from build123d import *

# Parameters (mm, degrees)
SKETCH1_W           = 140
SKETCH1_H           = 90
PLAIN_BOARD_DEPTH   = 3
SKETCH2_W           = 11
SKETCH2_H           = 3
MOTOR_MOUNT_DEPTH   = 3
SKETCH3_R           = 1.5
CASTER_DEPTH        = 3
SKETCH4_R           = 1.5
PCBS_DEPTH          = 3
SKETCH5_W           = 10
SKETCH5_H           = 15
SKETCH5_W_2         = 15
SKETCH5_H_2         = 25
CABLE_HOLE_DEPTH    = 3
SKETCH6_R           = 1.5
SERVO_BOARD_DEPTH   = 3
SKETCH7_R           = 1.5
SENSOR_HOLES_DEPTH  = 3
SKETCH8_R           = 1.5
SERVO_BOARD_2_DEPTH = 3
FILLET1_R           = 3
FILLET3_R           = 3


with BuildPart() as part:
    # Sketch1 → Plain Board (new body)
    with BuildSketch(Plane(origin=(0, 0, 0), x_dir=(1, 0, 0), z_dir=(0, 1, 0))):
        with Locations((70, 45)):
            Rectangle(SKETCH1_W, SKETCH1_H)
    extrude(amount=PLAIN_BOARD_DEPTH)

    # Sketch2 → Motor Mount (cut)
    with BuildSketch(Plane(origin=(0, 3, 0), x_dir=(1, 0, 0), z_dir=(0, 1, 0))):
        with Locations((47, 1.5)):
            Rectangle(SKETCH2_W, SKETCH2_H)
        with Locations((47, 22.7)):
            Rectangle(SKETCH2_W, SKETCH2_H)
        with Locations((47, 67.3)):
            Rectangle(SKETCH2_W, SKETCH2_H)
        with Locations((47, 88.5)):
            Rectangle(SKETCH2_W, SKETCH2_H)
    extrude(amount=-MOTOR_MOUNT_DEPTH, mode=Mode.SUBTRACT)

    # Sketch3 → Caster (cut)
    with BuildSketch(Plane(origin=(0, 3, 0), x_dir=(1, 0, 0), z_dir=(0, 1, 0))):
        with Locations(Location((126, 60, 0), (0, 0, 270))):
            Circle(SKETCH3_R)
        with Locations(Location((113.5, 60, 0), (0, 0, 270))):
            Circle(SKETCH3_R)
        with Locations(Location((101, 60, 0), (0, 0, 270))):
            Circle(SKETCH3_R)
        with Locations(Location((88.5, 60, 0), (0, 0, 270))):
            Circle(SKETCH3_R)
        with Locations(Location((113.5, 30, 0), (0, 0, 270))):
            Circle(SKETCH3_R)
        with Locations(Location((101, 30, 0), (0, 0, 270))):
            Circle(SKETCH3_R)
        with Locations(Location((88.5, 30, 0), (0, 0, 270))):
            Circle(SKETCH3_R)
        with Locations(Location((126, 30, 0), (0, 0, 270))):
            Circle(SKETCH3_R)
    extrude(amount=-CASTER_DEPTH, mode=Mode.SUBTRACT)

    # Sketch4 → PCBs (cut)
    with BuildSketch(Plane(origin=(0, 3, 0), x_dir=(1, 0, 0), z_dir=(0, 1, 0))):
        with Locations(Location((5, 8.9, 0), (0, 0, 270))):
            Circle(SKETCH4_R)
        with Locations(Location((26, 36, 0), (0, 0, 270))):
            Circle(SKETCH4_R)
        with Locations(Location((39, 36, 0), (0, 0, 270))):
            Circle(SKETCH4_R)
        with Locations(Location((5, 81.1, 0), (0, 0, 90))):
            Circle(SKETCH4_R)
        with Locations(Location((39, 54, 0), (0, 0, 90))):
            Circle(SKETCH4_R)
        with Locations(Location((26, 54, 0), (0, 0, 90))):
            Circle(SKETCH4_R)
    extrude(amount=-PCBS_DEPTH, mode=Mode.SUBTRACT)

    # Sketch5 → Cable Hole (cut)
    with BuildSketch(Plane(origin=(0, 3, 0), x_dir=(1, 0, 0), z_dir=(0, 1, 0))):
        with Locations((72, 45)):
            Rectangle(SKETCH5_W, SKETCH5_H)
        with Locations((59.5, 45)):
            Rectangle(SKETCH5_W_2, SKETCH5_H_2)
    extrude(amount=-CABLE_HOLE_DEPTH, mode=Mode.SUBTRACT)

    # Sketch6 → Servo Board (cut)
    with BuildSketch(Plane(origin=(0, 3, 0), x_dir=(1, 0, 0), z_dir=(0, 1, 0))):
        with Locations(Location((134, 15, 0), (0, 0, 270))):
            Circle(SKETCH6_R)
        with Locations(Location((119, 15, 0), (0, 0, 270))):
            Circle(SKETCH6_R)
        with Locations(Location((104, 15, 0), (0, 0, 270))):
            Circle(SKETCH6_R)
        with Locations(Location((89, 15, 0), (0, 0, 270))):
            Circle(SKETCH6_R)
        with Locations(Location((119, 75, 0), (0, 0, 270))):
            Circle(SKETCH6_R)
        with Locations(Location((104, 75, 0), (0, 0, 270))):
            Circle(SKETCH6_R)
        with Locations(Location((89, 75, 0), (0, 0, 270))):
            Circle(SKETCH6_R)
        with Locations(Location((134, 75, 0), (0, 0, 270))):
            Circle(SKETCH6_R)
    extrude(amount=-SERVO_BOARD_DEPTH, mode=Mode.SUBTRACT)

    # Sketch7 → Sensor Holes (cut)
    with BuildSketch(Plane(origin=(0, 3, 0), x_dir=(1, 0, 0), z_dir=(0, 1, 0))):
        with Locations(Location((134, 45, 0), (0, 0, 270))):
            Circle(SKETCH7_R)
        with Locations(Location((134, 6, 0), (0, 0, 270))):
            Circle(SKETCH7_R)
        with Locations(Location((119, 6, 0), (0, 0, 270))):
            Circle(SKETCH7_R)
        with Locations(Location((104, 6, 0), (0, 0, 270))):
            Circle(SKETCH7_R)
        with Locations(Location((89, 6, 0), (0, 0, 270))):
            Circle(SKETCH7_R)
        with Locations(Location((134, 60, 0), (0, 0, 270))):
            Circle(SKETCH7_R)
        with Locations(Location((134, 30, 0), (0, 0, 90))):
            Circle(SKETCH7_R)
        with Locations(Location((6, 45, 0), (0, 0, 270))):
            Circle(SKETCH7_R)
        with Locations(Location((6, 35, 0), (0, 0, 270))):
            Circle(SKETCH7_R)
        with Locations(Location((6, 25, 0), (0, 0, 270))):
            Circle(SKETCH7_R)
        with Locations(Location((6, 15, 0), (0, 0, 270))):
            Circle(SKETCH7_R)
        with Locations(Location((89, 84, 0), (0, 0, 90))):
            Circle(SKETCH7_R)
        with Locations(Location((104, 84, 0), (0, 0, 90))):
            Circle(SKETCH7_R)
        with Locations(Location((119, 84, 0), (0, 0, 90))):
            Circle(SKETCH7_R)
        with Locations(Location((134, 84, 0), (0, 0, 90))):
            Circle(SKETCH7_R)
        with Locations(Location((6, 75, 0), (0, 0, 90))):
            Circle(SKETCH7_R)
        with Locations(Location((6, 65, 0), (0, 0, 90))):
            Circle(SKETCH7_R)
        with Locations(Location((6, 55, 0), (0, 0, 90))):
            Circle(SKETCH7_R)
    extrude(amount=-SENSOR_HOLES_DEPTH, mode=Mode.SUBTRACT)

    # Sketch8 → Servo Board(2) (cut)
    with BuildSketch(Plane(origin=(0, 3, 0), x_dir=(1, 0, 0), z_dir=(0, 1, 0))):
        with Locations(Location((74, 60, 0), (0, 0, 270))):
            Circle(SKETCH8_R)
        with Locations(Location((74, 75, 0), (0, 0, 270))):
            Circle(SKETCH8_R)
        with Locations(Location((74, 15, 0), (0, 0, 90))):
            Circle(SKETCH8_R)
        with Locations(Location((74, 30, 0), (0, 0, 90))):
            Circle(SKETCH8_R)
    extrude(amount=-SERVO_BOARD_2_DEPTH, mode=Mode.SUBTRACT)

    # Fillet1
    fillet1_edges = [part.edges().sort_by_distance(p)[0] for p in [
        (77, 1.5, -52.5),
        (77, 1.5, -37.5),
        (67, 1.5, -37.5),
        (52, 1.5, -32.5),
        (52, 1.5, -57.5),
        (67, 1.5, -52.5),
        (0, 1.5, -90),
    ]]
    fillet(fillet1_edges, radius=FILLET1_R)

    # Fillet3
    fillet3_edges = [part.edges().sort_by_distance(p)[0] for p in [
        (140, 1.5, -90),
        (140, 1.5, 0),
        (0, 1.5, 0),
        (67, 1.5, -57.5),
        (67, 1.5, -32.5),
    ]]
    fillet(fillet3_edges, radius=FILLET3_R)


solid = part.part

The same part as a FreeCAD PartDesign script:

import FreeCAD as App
import Part
import Sketcher
Q = App.Units.Quantity


def edges_at(feature, points):
    """Names of the edges that pass closest to the given points."""
    edges = feature.Shape.Edges
    near = lambda p: min(range(len(edges)), key=lambda i: edges[i].distToShape(Part.Vertex(*p))[0])
    return sorted({f"Edge{near(p) + 1}" for p in points})

doc = App.newDocument("Part")
body = doc.addObject("PartDesign::Body", "Body")

sketch1 = body.newObject("Sketcher::SketchObject", "Sketch")
sketch1.AttachmentSupport = (doc.getObject("XZ_Plane"), [""])
sketch1.MapMode = "FlatFace"
sketch1.addGeometry([
    Part.LineSegment(App.Vector(0, -90, 0), App.Vector(0, 0, 0)),
    Part.LineSegment(App.Vector(0, 0, 0), App.Vector(140, 0, 0)),
    Part.LineSegment(App.Vector(140, 0, 0), App.Vector(140, -90, 0)),
    Part.LineSegment(App.Vector(140, -90, 0), App.Vector(0, -90, 0)),
], False)
sketch1.addConstraint([
    Sketcher.Constraint("Coincident", 0, 2, 1, 1),
    Sketcher.Constraint("Coincident", 1, 2, 2, 1),
    Sketcher.Constraint("Coincident", 2, 2, 3, 1),
    Sketcher.Constraint("Coincident", 3, 2, 0, 1),
    Sketcher.Constraint("Vertical", 0),
    Sketcher.Constraint("Horizontal", 1),
    Sketcher.Constraint("Vertical", 2),
    Sketcher.Constraint("Horizontal", 3),
    Sketcher.Constraint("Coincident", 0, 2, -1, 1),
    Sketcher.Constraint("DistanceX", 1, 1, 1, 2, Q("140 mm")),
    Sketcher.Constraint("DistanceY", 0, 1, 0, 2, Q("90 mm")),
])
pad1 = body.newObject("PartDesign::Pad", "Pad")
pad1.Profile = sketch1
pad1.Length = 3
pad1.Reversed = True

sketch2 = body.newObject("Sketcher::SketchObject", "Sketch001")
sketch2.AttachmentSupport = (doc.getObject("XZ_Plane"), [""])
sketch2.MapMode = "FlatFace"
sketch2.AttachmentOffset = App.Placement(App.Vector(0, 0, -3), App.Rotation())
sketch2.addGeometry([
    Part.LineSegment(App.Vector(41.5, -3, 0), App.Vector(41.5, 0, 0)),
    Part.LineSegment(App.Vector(41.5, 0, 0), App.Vector(52.5, 0, 0)),
    Part.LineSegment(App.Vector(52.5, 0, 0), App.Vector(52.5, -3, 0)),
    Part.LineSegment(App.Vector(52.5, -3, 0), App.Vector(41.5, -3, 0)),
    Part.LineSegment(App.Vector(41.5, -24.2, 0), App.Vector(41.5, -21.2, 0)),
    Part.LineSegment(App.Vector(41.5, -21.2, 0), App.Vector(52.5, -21.2, 0)),
    Part.LineSegment(App.Vector(52.5, -21.2, 0), App.Vector(52.5, -24.2, 0)),
    Part.LineSegment(App.Vector(52.5, -24.2, 0), App.Vector(41.5, -24.2, 0)),
    Part.LineSegment(App.Vector(41.5, -68.8, 0), App.Vector(41.5, -65.8, 0)),
    Part.LineSegment(App.Vector(41.5, -65.8, 0), App.Vector(52.5, -65.8, 0)),
    Part.LineSegment(App.Vector(52.5, -65.8, 0), App.Vector(52.5, -68.8, 0)),
    Part.LineSegment(App.Vector(52.5, -68.8, 0), App.Vector(41.5, -68.8, 0)),
    Part.LineSegment(App.Vector(41.5, -90, 0), App.Vector(41.5, -87, 0)),
    Part.LineSegment(App.Vector(41.5, -87, 0), App.Vector(52.5, -87, 0)),
    Part.LineSegment(App.Vector(52.5, -87, 0), App.Vector(52.5, -90, 0)),
    Part.LineSegment(App.Vector(52.5, -90, 0), App.Vector(41.5, -90, 0)),
], False)
sketch2.addConstraint([
    Sketcher.Constraint("Coincident", 0, 2, 1, 1),
    Sketcher.Constraint("Coincident", 1, 2, 2, 1),
    Sketcher.Constraint("Coincident", 2, 2, 3, 1),
    Sketcher.Constraint("Coincident", 3, 2, 0, 1),
    Sketcher.Constraint("Coincident", 4, 2, 5, 1),
    Sketcher.Constraint("Coincident", 5, 2, 6, 1),
    Sketcher.Constraint("Coincident", 6, 2, 7, 1),
    Sketcher.Constraint("Coincident", 7, 2, 4, 1),
    Sketcher.Constraint("Coincident", 8, 2, 9, 1),
    Sketcher.Constraint("Coincident", 9, 2, 10, 1),
    Sketcher.Constraint("Coincident", 10, 2, 11, 1),
    Sketcher.Constraint("Coincident", 11, 2, 8, 1),
    Sketcher.Constraint("Coincident", 12, 2, 13, 1),
    Sketcher.Constraint("Coincident", 13, 2, 14, 1),
    Sketcher.Constraint("Coincident", 14, 2, 15, 1),
    Sketcher.Constraint("Coincident", 15, 2, 12, 1),
    Sketcher.Constraint("Vertical", 0),
    Sketcher.Constraint("Horizontal", 1),
    Sketcher.Constraint("Vertical", 2),
    Sketcher.Constraint("Horizontal", 3),
    Sketcher.Constraint("Vertical", 4),
    Sketcher.Constraint("Horizontal", 5),
    Sketcher.Constraint("Vertical", 6),
    Sketcher.Constraint("Horizontal", 7),
    Sketcher.Constraint("Vertical", 8),
    Sketcher.Constraint("Horizontal", 9),
    Sketcher.Constraint("Vertical", 10),
    Sketcher.Constraint("Horizontal", 11),
    Sketcher.Constraint("Vertical", 12),
    Sketcher.Constraint("Horizontal", 13),
    Sketcher.Constraint("Vertical", 14),
    Sketcher.Constraint("Horizontal", 15),
    Sketcher.Constraint("PointOnObject", 0, 2, -1),
    Sketcher.Constraint("Vertical", 3, 2, 4, 2),
    Sketcher.Constraint("Vertical", 2, 2, 5, 2),
    Sketcher.Constraint("Vertical", 7, 2, 8, 2),
    Sketcher.Constraint("Vertical", 6, 2, 9, 2),
    Sketcher.Constraint("Vertical", 11, 2, 12, 2),
    Sketcher.Constraint("Vertical", 10, 2, 13, 2),
    Sketcher.Constraint("Equal", 2, 4),
    Sketcher.Constraint("Equal", 6, 8),
    Sketcher.Constraint("Equal", 10, 12),
    Sketcher.Constraint("DistanceX", 1, 1, 1, 2, Q("11 mm")),
    Sketcher.Constraint("DistanceY", 0, 1, 0, 2, Q("3 mm")),
    Sketcher.Constraint("DistanceY", 12, 2, -1, 1, Q("87 mm")),
    Sketcher.Constraint("DistanceX", -1, 1, 0, 2, Q("41.5 mm")),
    Sketcher.Constraint("DistanceY", 4, 2, -1, 1, Q("21.2 mm")),
    Sketcher.Constraint("DistanceY", 8, 2, -1, 1, Q("65.8 mm")),
])
pocket1 = body.newObject("PartDesign::Pocket", "Pocket")
pocket1.Profile = sketch2
pocket1.Length = 3
pocket1.Reversed = True

sketch3 = body.newObject("Sketcher::SketchObject", "Sketch002")
sketch3.AttachmentSupport = (doc.getObject("XZ_Plane"), [""])
sketch3.MapMode = "FlatFace"
sketch3.AttachmentOffset = App.Placement(App.Vector(0, 0, -3), App.Rotation())
sketch3.addGeometry([
    Part.Circle(App.Vector(126, -60, 0), App.Vector(0, 0, 1), 1.5),
    Part.Circle(App.Vector(113.5, -60, 0), App.Vector(0, 0, 1), 1.5),
    Part.Circle(App.Vector(101, -60, 0), App.Vector(0, 0, 1), 1.5),
    Part.Circle(App.Vector(88.5, -60, 0), App.Vector(0, 0, 1), 1.5),
    Part.Circle(App.Vector(113.5, -30, 0), App.Vector(0, 0, 1), 1.5),
    Part.Circle(App.Vector(101, -30, 0), App.Vector(0, 0, 1), 1.5),
    Part.Circle(App.Vector(88.5, -30, 0), App.Vector(0, 0, 1), 1.5),
    Part.Circle(App.Vector(126, -30, 0), App.Vector(0, 0, 1), 1.5),
], False)
sketch3.addConstraint([
    Sketcher.Constraint("Equal", 0, 1),
    Sketcher.Constraint("Equal", 1, 2),
    Sketcher.Constraint("Equal", 2, 3),
    Sketcher.Constraint("Equal", 3, 4),
    Sketcher.Constraint("Equal", 4, 5),
    Sketcher.Constraint("Equal", 5, 6),
    Sketcher.Constraint("Equal", 6, 7),
    Sketcher.Constraint("Horizontal", 0, 3, 1, 3),
    Sketcher.Constraint("Horizontal", 1, 3, 2, 3),
    Sketcher.Constraint("Horizontal", 2, 3, 3, 3),
    Sketcher.Constraint("Horizontal", 4, 3, 5, 3),
    Sketcher.Constraint("Horizontal", 5, 3, 6, 3),
    Sketcher.Constraint("Horizontal", 6, 3, 7, 3),
    Sketcher.Constraint("Vertical", 1, 3, 4, 3),
    Sketcher.Constraint("Vertical", 2, 3, 5, 3),
    Sketcher.Constraint("Vertical", 3, 3, 6, 3),
    Sketcher.Constraint("Vertical", 0, 3, 7, 3),
    Sketcher.Constraint("Diameter", 0, Q("3 mm")),
    Sketcher.Constraint("DistanceX", -1, 1, 0, 3, Q("126 mm")),
    Sketcher.Constraint("DistanceY", 0, 3, -1, 1, Q("60 mm")),
    Sketcher.Constraint("DistanceX", -1, 1, 2, 3, Q("101 mm")),
    Sketcher.Constraint("DistanceY", 4, 3, -1, 1, Q("30 mm")),
    Sketcher.Constraint("DistanceX", 3, 3, 1, 3, Q("25 mm")),
    Sketcher.Constraint("DistanceX", -1, 1, 1, 3, Q("113.5 mm")),
])
pocket2 = body.newObject("PartDesign::Pocket", "Pocket001")
pocket2.Profile = sketch3
pocket2.Length = 3
pocket2.Reversed = True

sketch4 = body.newObject("Sketcher::SketchObject", "Sketch003")
sketch4.AttachmentSupport = (doc.getObject("XZ_Plane"), [""])
sketch4.MapMode = "FlatFace"
sketch4.AttachmentOffset = App.Placement(App.Vector(0, 0, -3), App.Rotation())
sketch4.addGeometry([
    Part.Circle(App.Vector(5, -8.9, 0), App.Vector(0, 0, 1), 1.5),
    Part.Circle(App.Vector(26, -36, 0), App.Vector(0, 0, 1), 1.5),
    Part.Circle(App.Vector(39, -36, 0), App.Vector(0, 0, 1), 1.5),
    Part.Circle(App.Vector(5, -81.1, 0), App.Vector(0, 0, 1), 1.5),
    Part.Circle(App.Vector(39, -54, 0), App.Vector(0, 0, 1), 1.5),
    Part.Circle(App.Vector(26, -54, 0), App.Vector(0, 0, 1), 1.5),
], False)
sketch4.addConstraint([
    Sketcher.Constraint("Equal", 0, 1),
    Sketcher.Constraint("Equal", 1, 2),
    Sketcher.Constraint("Equal", 2, 3),
    Sketcher.Constraint("Equal", 3, 4),
    Sketcher.Constraint("Equal", 4, 5),
    Sketcher.Constraint("Horizontal", 1, 3, 2, 3),
    Sketcher.Constraint("Horizontal", 4, 3, 5, 3),
    Sketcher.Constraint("Vertical", 0, 3, 3, 3),
    Sketcher.Constraint("Vertical", 2, 3, 4, 3),
    Sketcher.Constraint("Vertical", 1, 3, 5, 3),
    Sketcher.Constraint("Diameter", 0, Q("3 mm")),
    Sketcher.Constraint("DistanceX", -1, 1, 0, 3, Q("5 mm")),
    Sketcher.Constraint("DistanceX", -1, 1, 1, 3, Q("26 mm")),
    Sketcher.Constraint("DistanceY", 1, 3, -1, 1, Q("36 mm")),
    Sketcher.Constraint("DistanceX", -1, 1, 2, 3, Q("39 mm")),
    Sketcher.Constraint("DistanceY", 4, 3, -1, 1, Q("54 mm")),
    Sketcher.Constraint("DistanceY", 0, 3, -1, 1, Q("8.9 mm")),
    Sketcher.Constraint("DistanceY", 3, 3, -1, 1, Q("81.1 mm")),
])
pocket3 = body.newObject("PartDesign::Pocket", "Pocket002")
pocket3.Profile = sketch4
pocket3.Length = 3
pocket3.Reversed = True

sketch5 = body.newObject("Sketcher::SketchObject", "Sketch004")
sketch5.AttachmentSupport = (doc.getObject("XZ_Plane"), [""])
sketch5.MapMode = "FlatFace"
sketch5.AttachmentOffset = App.Placement(App.Vector(0, 0, -3), App.Rotation())
sketch5.addGeometry([
    Part.LineSegment(App.Vector(67, -37.5, 0), App.Vector(77, -37.5, 0)),
    Part.LineSegment(App.Vector(77, -37.5, 0), App.Vector(77, -52.5, 0)),
    Part.LineSegment(App.Vector(77, -52.5, 0), App.Vector(67, -52.5, 0)),
    Part.LineSegment(App.Vector(67, -52.5, 0), App.Vector(67, -57.5, 0)),
    Part.LineSegment(App.Vector(67, -57.5, 0), App.Vector(52, -57.5, 0)),
    Part.LineSegment(App.Vector(52, -57.5, 0), App.Vector(52, -32.5, 0)),
    Part.LineSegment(App.Vector(52, -32.5, 0), App.Vector(67, -32.5, 0)),
    Part.LineSegment(App.Vector(67, -32.5, 0), App.Vector(67, -37.5, 0)),
], False)
sketch5.addConstraint([
    Sketcher.Constraint("Coincident", 0, 2, 1, 1),
    Sketcher.Constraint("Coincident", 1, 2, 2, 1),
    Sketcher.Constraint("Coincident", 2, 2, 3, 1),
    Sketcher.Constraint("Coincident", 3, 2, 4, 1),
    Sketcher.Constraint("Coincident", 4, 2, 5, 1),
    Sketcher.Constraint("Coincident", 5, 2, 6, 1),
    Sketcher.Constraint("Coincident", 6, 2, 7, 1),
    Sketcher.Constraint("Coincident", 7, 2, 0, 1),
    Sketcher.Constraint("Horizontal", 0),
    Sketcher.Constraint("Vertical", 1),
    Sketcher.Constraint("Horizontal", 2),
    Sketcher.Constraint("Vertical", 3),
    Sketcher.Constraint("Horizontal", 4),
    Sketcher.Constraint("Vertical", 5),
    Sketcher.Constraint("Horizontal", 6),
    Sketcher.Constraint("Vertical", 7),
    Sketcher.Constraint("Vertical", 3, 2, 6, 2),
    Sketcher.Constraint("Equal", 6, 1),
    Sketcher.Constraint("Equal", 3, 7),
    Sketcher.Constraint("DistanceX", 0, 1, 0, 2, Q("10 mm")),
    Sketcher.Constraint("DistanceX", 4, 2, 4, 1, Q("15 mm")),
    Sketcher.Constraint("DistanceY", 3, 2, 3, 1, Q("5 mm")),
    Sketcher.Constraint("DistanceX", -1, 1, 0, 2, Q("77 mm")),
    Sketcher.Constraint("DistanceY", 0, 2, -1, 1, Q("37.5 mm")),
])
pocket4 = body.newObject("PartDesign::Pocket", "Pocket003")
pocket4.Profile = sketch5
pocket4.Length = 3
pocket4.Reversed = True

sketch6 = body.newObject("Sketcher::SketchObject", "Sketch005")
sketch6.AttachmentSupport = (doc.getObject("XZ_Plane"), [""])
sketch6.MapMode = "FlatFace"
sketch6.AttachmentOffset = App.Placement(App.Vector(0, 0, -3), App.Rotation())
sketch6.addGeometry([
    Part.Circle(App.Vector(134, -15, 0), App.Vector(0, 0, 1), 1.5),
    Part.Circle(App.Vector(119, -15, 0), App.Vector(0, 0, 1), 1.5),
    Part.Circle(App.Vector(104, -15, 0), App.Vector(0, 0, 1), 1.5),
    Part.Circle(App.Vector(89, -15, 0), App.Vector(0, 0, 1), 1.5),
    Part.Circle(App.Vector(119, -75, 0), App.Vector(0, 0, 1), 1.5),
    Part.Circle(App.Vector(104, -75, 0), App.Vector(0, 0, 1), 1.5),
    Part.Circle(App.Vector(89, -75, 0), App.Vector(0, 0, 1), 1.5),
    Part.Circle(App.Vector(134, -75, 0), App.Vector(0, 0, 1), 1.5),
], False)
sketch6.addConstraint([
    Sketcher.Constraint("Equal", 0, 1),
    Sketcher.Constraint("Equal", 1, 2),
    Sketcher.Constraint("Equal", 2, 3),
    Sketcher.Constraint("Equal", 3, 4),
    Sketcher.Constraint("Equal", 4, 5),
    Sketcher.Constraint("Equal", 5, 6),
    Sketcher.Constraint("Equal", 6, 7),
    Sketcher.Constraint("Horizontal", 0, 3, 1, 3),
    Sketcher.Constraint("Horizontal", 1, 3, 2, 3),
    Sketcher.Constraint("Horizontal", 2, 3, 3, 3),
    Sketcher.Constraint("Horizontal", 4, 3, 5, 3),
    Sketcher.Constraint("Horizontal", 5, 3, 6, 3),
    Sketcher.Constraint("Horizontal", 6, 3, 7, 3),
    Sketcher.Constraint("Vertical", 1, 3, 4, 3),
    Sketcher.Constraint("Vertical", 2, 3, 5, 3),
    Sketcher.Constraint("Vertical", 3, 3, 6, 3),
    Sketcher.Constraint("Vertical", 0, 3, 7, 3),
    Sketcher.Constraint("Diameter", 0, Q("3 mm")),
    Sketcher.Constraint("DistanceX", -1, 1, 0, 3, Q("134 mm")),
    Sketcher.Constraint("DistanceY", 0, 3, -1, 1, Q("15 mm")),
    Sketcher.Constraint("DistanceX", -1, 1, 1, 3, Q("119 mm")),
    Sketcher.Constraint("DistanceX", -1, 1, 2, 3, Q("104 mm")),
    Sketcher.Constraint("DistanceX", -1, 1, 3, 3, Q("89 mm")),
    Sketcher.Constraint("DistanceY", 4, 3, -1, 1, Q("75 mm")),
])
pocket5 = body.newObject("PartDesign::Pocket", "Pocket004")
pocket5.Profile = sketch6
pocket5.Length = 3
pocket5.Reversed = True

sketch7 = body.newObject("Sketcher::SketchObject", "Sketch006")
sketch7.AttachmentSupport = (doc.getObject("XZ_Plane"), [""])
sketch7.MapMode = "FlatFace"
sketch7.AttachmentOffset = App.Placement(App.Vector(0, 0, -3), App.Rotation())
sketch7.addGeometry([
    Part.Circle(App.Vector(134, -45, 0), App.Vector(0, 0, 1), 1.5),
    Part.Circle(App.Vector(134, -6, 0), App.Vector(0, 0, 1), 1.5),
    Part.Circle(App.Vector(119, -6, 0), App.Vector(0, 0, 1), 1.5),
    Part.Circle(App.Vector(104, -6, 0), App.Vector(0, 0, 1), 1.5),
    Part.Circle(App.Vector(89, -6, 0), App.Vector(0, 0, 1), 1.5),
    Part.Circle(App.Vector(134, -60, 0), App.Vector(0, 0, 1), 1.5),
    Part.Circle(App.Vector(134, -30, 0), App.Vector(0, 0, 1), 1.5),
    Part.Circle(App.Vector(6, -45, 0), App.Vector(0, 0, 1), 1.5),
    Part.Circle(App.Vector(6, -35, 0), App.Vector(0, 0, 1), 1.5),
    Part.Circle(App.Vector(6, -25, 0), App.Vector(0, 0, 1), 1.5),
    Part.Circle(App.Vector(6, -15, 0), App.Vector(0, 0, 1), 1.5),
    Part.Circle(App.Vector(89, -84, 0), App.Vector(0, 0, 1), 1.5),
    Part.Circle(App.Vector(104, -84, 0), App.Vector(0, 0, 1), 1.5),
    Part.Circle(App.Vector(119, -84, 0), App.Vector(0, 0, 1), 1.5),
    Part.Circle(App.Vector(134, -84, 0), App.Vector(0, 0, 1), 1.5),
    Part.Circle(App.Vector(6, -75, 0), App.Vector(0, 0, 1), 1.5),
    Part.Circle(App.Vector(6, -65, 0), App.Vector(0, 0, 1), 1.5),
    Part.Circle(App.Vector(6, -55, 0), App.Vector(0, 0, 1), 1.5),
], False)
sketch7.addConstraint([
    Sketcher.Constraint("Equal", 0, 1),
    Sketcher.Constraint("Equal", 1, 2),
    Sketcher.Constraint("Equal", 2, 3),
    Sketcher.Constraint("Equal", 3, 4),
    Sketcher.Constraint("Equal", 4, 5),
    Sketcher.Constraint("Equal", 5, 6),
    Sketcher.Constraint("Equal", 6, 7),
    Sketcher.Constraint("Equal", 7, 8),
    Sketcher.Constraint("Equal", 8, 9),
    Sketcher.Constraint("Equal", 9, 10),
    Sketcher.Constraint("Equal", 10, 11),
    Sketcher.Constraint("Equal", 11, 12),
    Sketcher.Constraint("Equal", 12, 13),
    Sketcher.Constraint("Equal", 13, 14),
    Sketcher.Constraint("Equal", 14, 15),
    Sketcher.Constraint("Equal", 15, 16),
    Sketcher.Constraint("Equal", 16, 17),
    Sketcher.Constraint("Horizontal", 1, 3, 2, 3),
    Sketcher.Constraint("Horizontal", 2, 3, 3, 3),
    Sketcher.Constraint("Horizontal", 3, 3, 4, 3),
    Sketcher.Constraint("Horizontal", 0, 3, 7, 3),
    Sketcher.Constraint("Horizontal", 11, 3, 12, 3),
    Sketcher.Constraint("Horizontal", 12, 3, 13, 3),
    Sketcher.Constraint("Horizontal", 13, 3, 14, 3),
    Sketcher.Constraint("Vertical", 0, 3, 1, 3),
    Sketcher.Constraint("Vertical", 1, 3, 5, 3),
    Sketcher.Constraint("Vertical", 5, 3, 6, 3),
    Sketcher.Constraint("Vertical", 7, 3, 8, 3),
    Sketcher.Constraint("Vertical", 8, 3, 9, 3),
    Sketcher.Constraint("Vertical", 9, 3, 10, 3),
    Sketcher.Constraint("Vertical", 4, 3, 11, 3),
    Sketcher.Constraint("Vertical", 3, 3, 12, 3),
    Sketcher.Constraint("Vertical", 2, 3, 13, 3),
    Sketcher.Constraint("Vertical", 6, 3, 14, 3),
    Sketcher.Constraint("Vertical", 10, 3, 15, 3),
    Sketcher.Constraint("Vertical", 15, 3, 16, 3),
    Sketcher.Constraint("Vertical", 16, 3, 17, 3),
    Sketcher.Constraint("Diameter", 0, Q("3 mm")),
    Sketcher.Constraint("DistanceX", -1, 1, 0, 3, Q("134 mm")),
    Sketcher.Constraint("DistanceY", 0, 3, -1, 1, Q("45 mm")),
    Sketcher.Constraint("DistanceY", 1, 3, -1, 1, Q("6 mm")),
    Sketcher.Constraint("DistanceX", -1, 1, 2, 3, Q("119 mm")),
    Sketcher.Constraint("DistanceX", -1, 1, 3, 3, Q("104 mm")),
    Sketcher.Constraint("DistanceX", -1, 1, 4, 3, Q("89 mm")),
    Sketcher.Constraint("DistanceY", 5, 3, -1, 1, Q("60 mm")),
    Sketcher.Constraint("DistanceY", 6, 3, -1, 1, Q("30 mm")),
    Sketcher.Constraint("DistanceX", -1, 1, 7, 3, Q("6 mm")),
    Sketcher.Constraint("DistanceY", 8, 3, -1, 1, Q("35 mm")),
    Sketcher.Constraint("DistanceY", 9, 3, -1, 1, Q("25 mm")),
    Sketcher.Constraint("DistanceY", 10, 3, -1, 1, Q("15 mm")),
    Sketcher.Constraint("DistanceY", 11, 3, -1, 1, Q("84 mm")),
    Sketcher.Constraint("DistanceY", 15, 3, -1, 1, Q("75 mm")),
    Sketcher.Constraint("DistanceY", 16, 3, -1, 1, Q("65 mm")),
    Sketcher.Constraint("DistanceY", 17, 3, -1, 1, Q("55 mm")),
])
pocket6 = body.newObject("PartDesign::Pocket", "Pocket005")
pocket6.Profile = sketch7
pocket6.Length = 3
pocket6.Reversed = True

sketch8 = body.newObject("Sketcher::SketchObject", "Sketch007")
sketch8.AttachmentSupport = (doc.getObject("XZ_Plane"), [""])
sketch8.MapMode = "FlatFace"
sketch8.AttachmentOffset = App.Placement(App.Vector(0, 0, -3), App.Rotation())
sketch8.addGeometry([
    Part.Circle(App.Vector(74, -60, 0), App.Vector(0, 0, 1), 1.5),
    Part.Circle(App.Vector(74, -75, 0), App.Vector(0, 0, 1), 1.5),
    Part.Circle(App.Vector(74, -15, 0), App.Vector(0, 0, 1), 1.5),
    Part.Circle(App.Vector(74, -30, 0), App.Vector(0, 0, 1), 1.5),
], False)
sketch8.addConstraint([
    Sketcher.Constraint("Equal", 0, 1),
    Sketcher.Constraint("Equal", 1, 2),
    Sketcher.Constraint("Equal", 2, 3),
    Sketcher.Constraint("Vertical", 0, 3, 1, 3),
    Sketcher.Constraint("Vertical", 1, 3, 2, 3),
    Sketcher.Constraint("Vertical", 2, 3, 3, 3),
    Sketcher.Constraint("Diameter", 0, Q("3 mm")),
    Sketcher.Constraint("DistanceX", -1, 1, 0, 3, Q("74 mm")),
    Sketcher.Constraint("DistanceY", 0, 3, -1, 1, Q("60 mm")),
    Sketcher.Constraint("DistanceY", 1, 3, -1, 1, Q("75 mm")),
    Sketcher.Constraint("DistanceY", 2, 3, -1, 1, Q("15 mm")),
    Sketcher.Constraint("DistanceY", 3, 3, -1, 1, Q("30 mm")),
])
pocket7 = body.newObject("PartDesign::Pocket", "Pocket006")
pocket7.Profile = sketch8
pocket7.Length = 3
pocket7.Reversed = True
doc.recompute()

fillet = body.newObject("PartDesign::Fillet", "Fillet")
fillet.Base = (pocket7, edges_at(pocket7, [
    (77, 1.5, -52.5),
    (77, 1.5, -37.5),
    (67, 1.5, -37.5),
    (52, 1.5, -32.5),
    (52, 1.5, -57.5),
    (67, 1.5, -52.5),
    (0, 1.5, -90),
]))
fillet.Radius = 3
doc.recompute()

fillet2 = body.newObject("PartDesign::Fillet", "Fillet001")
fillet2.Base = (fillet, edges_at(fillet, [
    (140, 1.5, -90),
    (140, 1.5, 0),
    (0, 1.5, 0),
    (67, 1.5, -57.5),
    (67, 1.5, -32.5),
]))
fillet2.Radius = 3

doc.recompute()
